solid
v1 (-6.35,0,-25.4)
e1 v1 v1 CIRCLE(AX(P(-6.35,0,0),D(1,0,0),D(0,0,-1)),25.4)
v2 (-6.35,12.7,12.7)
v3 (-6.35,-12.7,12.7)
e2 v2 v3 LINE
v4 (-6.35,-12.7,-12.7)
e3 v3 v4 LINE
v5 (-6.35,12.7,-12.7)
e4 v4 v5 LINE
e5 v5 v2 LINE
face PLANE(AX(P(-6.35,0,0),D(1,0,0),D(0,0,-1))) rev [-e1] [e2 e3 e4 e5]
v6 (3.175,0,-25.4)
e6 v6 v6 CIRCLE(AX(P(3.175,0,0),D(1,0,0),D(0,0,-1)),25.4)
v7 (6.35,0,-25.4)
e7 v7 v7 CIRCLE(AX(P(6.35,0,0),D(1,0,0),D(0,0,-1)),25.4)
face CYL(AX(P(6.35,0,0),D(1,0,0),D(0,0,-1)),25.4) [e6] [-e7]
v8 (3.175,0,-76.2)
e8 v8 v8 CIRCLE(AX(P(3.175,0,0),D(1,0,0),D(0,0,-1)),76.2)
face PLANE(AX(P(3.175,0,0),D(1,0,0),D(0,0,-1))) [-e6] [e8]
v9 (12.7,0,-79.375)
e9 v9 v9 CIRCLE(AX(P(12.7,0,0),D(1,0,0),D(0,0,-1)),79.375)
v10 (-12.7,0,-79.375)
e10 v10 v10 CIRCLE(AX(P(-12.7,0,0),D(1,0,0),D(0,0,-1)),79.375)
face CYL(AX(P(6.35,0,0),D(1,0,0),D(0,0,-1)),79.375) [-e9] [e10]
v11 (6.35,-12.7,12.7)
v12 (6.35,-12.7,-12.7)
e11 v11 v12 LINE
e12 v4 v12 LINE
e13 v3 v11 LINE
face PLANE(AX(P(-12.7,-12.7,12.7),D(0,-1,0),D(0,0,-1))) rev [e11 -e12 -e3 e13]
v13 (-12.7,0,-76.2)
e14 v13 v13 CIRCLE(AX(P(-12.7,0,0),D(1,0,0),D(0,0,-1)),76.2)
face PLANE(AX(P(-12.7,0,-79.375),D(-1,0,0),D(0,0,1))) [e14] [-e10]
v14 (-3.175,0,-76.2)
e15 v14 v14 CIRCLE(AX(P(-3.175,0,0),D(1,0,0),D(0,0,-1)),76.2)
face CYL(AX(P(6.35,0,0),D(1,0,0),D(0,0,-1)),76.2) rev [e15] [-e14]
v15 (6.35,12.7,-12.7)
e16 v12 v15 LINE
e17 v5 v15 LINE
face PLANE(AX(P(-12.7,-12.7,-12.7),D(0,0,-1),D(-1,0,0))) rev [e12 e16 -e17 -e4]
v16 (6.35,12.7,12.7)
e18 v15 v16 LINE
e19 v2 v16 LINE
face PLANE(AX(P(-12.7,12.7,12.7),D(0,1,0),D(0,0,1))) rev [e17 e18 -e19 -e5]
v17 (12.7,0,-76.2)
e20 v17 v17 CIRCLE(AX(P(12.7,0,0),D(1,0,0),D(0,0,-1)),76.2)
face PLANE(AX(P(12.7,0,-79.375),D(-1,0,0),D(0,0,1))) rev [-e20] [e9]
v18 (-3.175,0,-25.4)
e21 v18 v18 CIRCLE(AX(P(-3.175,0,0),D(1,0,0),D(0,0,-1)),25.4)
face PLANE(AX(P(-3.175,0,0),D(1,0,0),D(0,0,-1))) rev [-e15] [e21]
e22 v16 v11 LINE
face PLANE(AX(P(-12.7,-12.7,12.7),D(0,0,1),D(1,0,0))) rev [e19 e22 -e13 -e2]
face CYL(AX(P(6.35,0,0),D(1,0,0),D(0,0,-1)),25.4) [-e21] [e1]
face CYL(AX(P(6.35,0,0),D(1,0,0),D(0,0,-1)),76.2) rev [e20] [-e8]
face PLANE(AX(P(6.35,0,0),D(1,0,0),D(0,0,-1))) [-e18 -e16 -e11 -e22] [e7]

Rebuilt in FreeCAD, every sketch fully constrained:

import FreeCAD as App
import Part
import Sketcher
Q = App.Units.Quantity

doc = App.newDocument("Part")
body = doc.addObject("PartDesign::Body", "Body")

# Sketch on XZ plane
sketch1 = doc.addObject("Sketcher::SketchObject", "Sketch")
body.addObject(sketch1)
sketch1.AttachmentSupport = (doc.XZ_Plane, [""])
sketch1.MapMode = "FlatFace"
sketch1.addGeometry(Part.LineSegment(App.Vector(-3.175, -76.2, 0), App.Vector(-3.175, -25.4, 0)), False)
sketch1.addGeometry(Part.LineSegment(App.Vector(-3.175, -25.4, 0), App.Vector(-6.35, -25.4, 0)), False)
sketch1.addGeometry(Part.LineSegment(App.Vector(-6.35, -25.4, 0), App.Vector(-6.35, 0, 0)), False)
sketch1.addGeometry(Part.LineSegment(App.Vector(-6.35, 0, 0), App.Vector(6.35, 0, 0)), False)
sketch1.addGeometry(Part.LineSegment(App.Vector(6.35, 0, 0), App.Vector(6.35, -25.4, 0)), False)
sketch1.addGeometry(Part.LineSegment(App.Vector(6.35, -25.4, 0), App.Vector(3.175, -25.4, 0)), False)
sketch1.addGeometry(Part.LineSegment(App.Vector(3.175, -25.4, 0), App.Vector(3.175, -76.2, 0)), False)
sketch1.addGeometry(Part.LineSegment(App.Vector(3.175, -76.2, 0), App.Vector(12.7, -76.2, 0)), False)
sketch1.addGeometry(Part.LineSegment(App.Vector(12.7, -76.2, 0), App.Vector(12.7, -79.375, 0)), False)
sketch1.addGeometry(Part.LineSegment(App.Vector(12.7, -79.375, 0), App.Vector(-12.7, -79.375, 0)), False)
sketch1.addGeometry(Part.LineSegment(App.Vector(-12.7, -79.375, 0), App.Vector(-12.7, -76.2, 0)), False)
sketch1.addGeometry(Part.LineSegment(App.Vector(-12.7, -76.2, 0), App.Vector(-3.175, -76.2, 0)), False)
sketch1.addConstraint(Sketcher.Constraint("Coincident", 0, 2, 1, 1))
sketch1.addConstraint(Sketcher.Constraint("Coincident", 1, 2, 2, 1))
sketch1.addConstraint(Sketcher.Constraint("Coincident", 2, 2, 3, 1))
sketch1.addConstraint(Sketcher.Constraint("Coincident", 3, 2, 4, 1))
sketch1.addConstraint(Sketcher.Constraint("Coincident", 4, 2, 5, 1))
sketch1.addConstraint(Sketcher.Constraint("Coincident", 5, 2, 6, 1))
sketch1.addConstraint(Sketcher.Constraint("Coincident", 6, 2, 7, 1))
sketch1.addConstraint(Sketcher.Constraint("Coincident", 7, 2, 8, 1))
sketch1.addConstraint(Sketcher.Constraint("Coincident", 8, 2, 9, 1))
sketch1.addConstraint(Sketcher.Constraint("Coincident", 9, 2, 10, 1))
sketch1.addConstraint(Sketcher.Constraint("Coincident", 10, 2, 11, 1))
sketch1.addConstraint(Sketcher.Constraint("Coincident", 11, 2, 0, 1))
sketch1.addConstraint(Sketcher.Constraint("Vertical", 0))
sketch1.addConstraint(Sketcher.Constraint("Horizontal", 1))
sketch1.addConstraint(Sketcher.Constraint("Vertical", 2))
sketch1.addConstraint(Sketcher.Constraint("Horizontal", 3))
sketch1.addConstraint(Sketcher.Constraint("Vertical", 4))
sketch1.addConstraint(Sketcher.Constraint("Horizontal", 5))
sketch1.addConstraint(Sketcher.Constraint("Vertical", 6))
sketch1.addConstraint(Sketcher.Constraint("Horizontal", 7))
sketch1.addConstraint(Sketcher.Constraint("Vertical", 8))
sketch1.addConstraint(Sketcher.Constraint("Horizontal", 9))
sketch1.addConstraint(Sketcher.Constraint("Vertical", 10))
sketch1.addConstraint(Sketcher.Constraint("Horizontal", 11))
sketch1.addConstraint(Sketcher.Constraint("Symmetric", 2, 2, 3, 2, -1, 1))
sketch1.addConstraint(Sketcher.Constraint("Symmetric", 0, 2, 5, 2, -2))
sketch1.addConstraint(Sketcher.Constraint("Symmetric", 7, 2, 10, 2, -2))
sketch1.addConstraint(Sketcher.Constraint("Equal", 9, 2))
sketch1.addConstraint(Sketcher.Constraint("Equal", 5, 8))
sketch1.addConstraint(Sketcher.Constraint("DistanceX", 9, 2, 9, 1, Q("1 in")))
sketch1.addConstraint(Sketcher.Constraint("DistanceY", 0, 1, 0, 2, Q("2 in")))
sketch1.addConstraint(Sketcher.Constraint("DistanceX", 3, 1, 3, 2, Q("0.5 in")))
sketch1.addConstraint(Sketcher.Constraint("DistanceX", 1, 2, 1, 1, Q("0.125 in")))
revolution = doc.addObject("PartDesign::Revolution", "Revolution")
body.addObject(revolution)
revolution.Profile = sketch1
revolution.ReferenceAxis = (sketch1, ["H_Axis"])
revolution.Angle = 360

# Sketch on YZ plane
sketch2 = doc.addObject("Sketcher::SketchObject", "Sketch001")
body.addObject(sketch2)
sketch2.AttachmentSupport = (doc.YZ_Plane, [""])
sketch2.MapMode = "FlatFace"
sketch2.AttachmentOffset = App.Placement(App.Vector(0, 0, 0.25 * 25.4), App.Rotation())
sketch2.addGeometry(Part.LineSegment(App.Vector(12.7, 12.7, 0), App.Vector(-12.7, 12.7, 0)), False)
sketch2.addGeometry(Part.LineSegment(App.Vector(-12.7, 12.7, 0), App.Vector(-12.7, -12.7, 0)), False)
sketch2.addGeometry(Part.LineSegment(App.Vector(-12.7, -12.7, 0), App.Vector(12.7, -12.7, 0)), False)
sketch2.addGeometry(Part.LineSegment(App.Vector(12.7, -12.7, 0), App.Vector(12.7, 12.7, 0)), False)
sketch2.addConstraint(Sketcher.Constraint("Coincident", 0, 2, 1, 1))
sketch2.addConstraint(Sketcher.Constraint("Coincident", 1, 2, 2, 1))
sketch2.addConstraint(Sketcher.Constraint("Coincident", 2, 2, 3, 1))
sketch2.addConstraint(Sketcher.Constraint("Coincident", 3, 2, 0, 1))
sketch2.addConstraint(Sketcher.Constraint("Horizontal", 0))
sketch2.addConstraint(Sketcher.Constraint("Vertical", 1))
sketch2.addConstraint(Sketcher.Constraint("Horizontal", 2))
sketch2.addConstraint(Sketcher.Constraint("Vertical", 3))
sketch2.addConstraint(Sketcher.Constraint("Symmetric", 0, 2, 2, 2, -1, 1))
sketch2.addConstraint(Sketcher.Constraint("Equal", 2, 1))
sketch2.addConstraint(Sketcher.Constraint("DistanceX", 0, 2, 0, 1, Q("1 in")))
pocket1 = doc.addObject("PartDesign::Pocket", "Pocket")
body.addObject(pocket1)
pocket1.Profile = sketch2
pocket1.Type = "ThroughAll"
pocket1.Midplane = True

doc.recompute()
